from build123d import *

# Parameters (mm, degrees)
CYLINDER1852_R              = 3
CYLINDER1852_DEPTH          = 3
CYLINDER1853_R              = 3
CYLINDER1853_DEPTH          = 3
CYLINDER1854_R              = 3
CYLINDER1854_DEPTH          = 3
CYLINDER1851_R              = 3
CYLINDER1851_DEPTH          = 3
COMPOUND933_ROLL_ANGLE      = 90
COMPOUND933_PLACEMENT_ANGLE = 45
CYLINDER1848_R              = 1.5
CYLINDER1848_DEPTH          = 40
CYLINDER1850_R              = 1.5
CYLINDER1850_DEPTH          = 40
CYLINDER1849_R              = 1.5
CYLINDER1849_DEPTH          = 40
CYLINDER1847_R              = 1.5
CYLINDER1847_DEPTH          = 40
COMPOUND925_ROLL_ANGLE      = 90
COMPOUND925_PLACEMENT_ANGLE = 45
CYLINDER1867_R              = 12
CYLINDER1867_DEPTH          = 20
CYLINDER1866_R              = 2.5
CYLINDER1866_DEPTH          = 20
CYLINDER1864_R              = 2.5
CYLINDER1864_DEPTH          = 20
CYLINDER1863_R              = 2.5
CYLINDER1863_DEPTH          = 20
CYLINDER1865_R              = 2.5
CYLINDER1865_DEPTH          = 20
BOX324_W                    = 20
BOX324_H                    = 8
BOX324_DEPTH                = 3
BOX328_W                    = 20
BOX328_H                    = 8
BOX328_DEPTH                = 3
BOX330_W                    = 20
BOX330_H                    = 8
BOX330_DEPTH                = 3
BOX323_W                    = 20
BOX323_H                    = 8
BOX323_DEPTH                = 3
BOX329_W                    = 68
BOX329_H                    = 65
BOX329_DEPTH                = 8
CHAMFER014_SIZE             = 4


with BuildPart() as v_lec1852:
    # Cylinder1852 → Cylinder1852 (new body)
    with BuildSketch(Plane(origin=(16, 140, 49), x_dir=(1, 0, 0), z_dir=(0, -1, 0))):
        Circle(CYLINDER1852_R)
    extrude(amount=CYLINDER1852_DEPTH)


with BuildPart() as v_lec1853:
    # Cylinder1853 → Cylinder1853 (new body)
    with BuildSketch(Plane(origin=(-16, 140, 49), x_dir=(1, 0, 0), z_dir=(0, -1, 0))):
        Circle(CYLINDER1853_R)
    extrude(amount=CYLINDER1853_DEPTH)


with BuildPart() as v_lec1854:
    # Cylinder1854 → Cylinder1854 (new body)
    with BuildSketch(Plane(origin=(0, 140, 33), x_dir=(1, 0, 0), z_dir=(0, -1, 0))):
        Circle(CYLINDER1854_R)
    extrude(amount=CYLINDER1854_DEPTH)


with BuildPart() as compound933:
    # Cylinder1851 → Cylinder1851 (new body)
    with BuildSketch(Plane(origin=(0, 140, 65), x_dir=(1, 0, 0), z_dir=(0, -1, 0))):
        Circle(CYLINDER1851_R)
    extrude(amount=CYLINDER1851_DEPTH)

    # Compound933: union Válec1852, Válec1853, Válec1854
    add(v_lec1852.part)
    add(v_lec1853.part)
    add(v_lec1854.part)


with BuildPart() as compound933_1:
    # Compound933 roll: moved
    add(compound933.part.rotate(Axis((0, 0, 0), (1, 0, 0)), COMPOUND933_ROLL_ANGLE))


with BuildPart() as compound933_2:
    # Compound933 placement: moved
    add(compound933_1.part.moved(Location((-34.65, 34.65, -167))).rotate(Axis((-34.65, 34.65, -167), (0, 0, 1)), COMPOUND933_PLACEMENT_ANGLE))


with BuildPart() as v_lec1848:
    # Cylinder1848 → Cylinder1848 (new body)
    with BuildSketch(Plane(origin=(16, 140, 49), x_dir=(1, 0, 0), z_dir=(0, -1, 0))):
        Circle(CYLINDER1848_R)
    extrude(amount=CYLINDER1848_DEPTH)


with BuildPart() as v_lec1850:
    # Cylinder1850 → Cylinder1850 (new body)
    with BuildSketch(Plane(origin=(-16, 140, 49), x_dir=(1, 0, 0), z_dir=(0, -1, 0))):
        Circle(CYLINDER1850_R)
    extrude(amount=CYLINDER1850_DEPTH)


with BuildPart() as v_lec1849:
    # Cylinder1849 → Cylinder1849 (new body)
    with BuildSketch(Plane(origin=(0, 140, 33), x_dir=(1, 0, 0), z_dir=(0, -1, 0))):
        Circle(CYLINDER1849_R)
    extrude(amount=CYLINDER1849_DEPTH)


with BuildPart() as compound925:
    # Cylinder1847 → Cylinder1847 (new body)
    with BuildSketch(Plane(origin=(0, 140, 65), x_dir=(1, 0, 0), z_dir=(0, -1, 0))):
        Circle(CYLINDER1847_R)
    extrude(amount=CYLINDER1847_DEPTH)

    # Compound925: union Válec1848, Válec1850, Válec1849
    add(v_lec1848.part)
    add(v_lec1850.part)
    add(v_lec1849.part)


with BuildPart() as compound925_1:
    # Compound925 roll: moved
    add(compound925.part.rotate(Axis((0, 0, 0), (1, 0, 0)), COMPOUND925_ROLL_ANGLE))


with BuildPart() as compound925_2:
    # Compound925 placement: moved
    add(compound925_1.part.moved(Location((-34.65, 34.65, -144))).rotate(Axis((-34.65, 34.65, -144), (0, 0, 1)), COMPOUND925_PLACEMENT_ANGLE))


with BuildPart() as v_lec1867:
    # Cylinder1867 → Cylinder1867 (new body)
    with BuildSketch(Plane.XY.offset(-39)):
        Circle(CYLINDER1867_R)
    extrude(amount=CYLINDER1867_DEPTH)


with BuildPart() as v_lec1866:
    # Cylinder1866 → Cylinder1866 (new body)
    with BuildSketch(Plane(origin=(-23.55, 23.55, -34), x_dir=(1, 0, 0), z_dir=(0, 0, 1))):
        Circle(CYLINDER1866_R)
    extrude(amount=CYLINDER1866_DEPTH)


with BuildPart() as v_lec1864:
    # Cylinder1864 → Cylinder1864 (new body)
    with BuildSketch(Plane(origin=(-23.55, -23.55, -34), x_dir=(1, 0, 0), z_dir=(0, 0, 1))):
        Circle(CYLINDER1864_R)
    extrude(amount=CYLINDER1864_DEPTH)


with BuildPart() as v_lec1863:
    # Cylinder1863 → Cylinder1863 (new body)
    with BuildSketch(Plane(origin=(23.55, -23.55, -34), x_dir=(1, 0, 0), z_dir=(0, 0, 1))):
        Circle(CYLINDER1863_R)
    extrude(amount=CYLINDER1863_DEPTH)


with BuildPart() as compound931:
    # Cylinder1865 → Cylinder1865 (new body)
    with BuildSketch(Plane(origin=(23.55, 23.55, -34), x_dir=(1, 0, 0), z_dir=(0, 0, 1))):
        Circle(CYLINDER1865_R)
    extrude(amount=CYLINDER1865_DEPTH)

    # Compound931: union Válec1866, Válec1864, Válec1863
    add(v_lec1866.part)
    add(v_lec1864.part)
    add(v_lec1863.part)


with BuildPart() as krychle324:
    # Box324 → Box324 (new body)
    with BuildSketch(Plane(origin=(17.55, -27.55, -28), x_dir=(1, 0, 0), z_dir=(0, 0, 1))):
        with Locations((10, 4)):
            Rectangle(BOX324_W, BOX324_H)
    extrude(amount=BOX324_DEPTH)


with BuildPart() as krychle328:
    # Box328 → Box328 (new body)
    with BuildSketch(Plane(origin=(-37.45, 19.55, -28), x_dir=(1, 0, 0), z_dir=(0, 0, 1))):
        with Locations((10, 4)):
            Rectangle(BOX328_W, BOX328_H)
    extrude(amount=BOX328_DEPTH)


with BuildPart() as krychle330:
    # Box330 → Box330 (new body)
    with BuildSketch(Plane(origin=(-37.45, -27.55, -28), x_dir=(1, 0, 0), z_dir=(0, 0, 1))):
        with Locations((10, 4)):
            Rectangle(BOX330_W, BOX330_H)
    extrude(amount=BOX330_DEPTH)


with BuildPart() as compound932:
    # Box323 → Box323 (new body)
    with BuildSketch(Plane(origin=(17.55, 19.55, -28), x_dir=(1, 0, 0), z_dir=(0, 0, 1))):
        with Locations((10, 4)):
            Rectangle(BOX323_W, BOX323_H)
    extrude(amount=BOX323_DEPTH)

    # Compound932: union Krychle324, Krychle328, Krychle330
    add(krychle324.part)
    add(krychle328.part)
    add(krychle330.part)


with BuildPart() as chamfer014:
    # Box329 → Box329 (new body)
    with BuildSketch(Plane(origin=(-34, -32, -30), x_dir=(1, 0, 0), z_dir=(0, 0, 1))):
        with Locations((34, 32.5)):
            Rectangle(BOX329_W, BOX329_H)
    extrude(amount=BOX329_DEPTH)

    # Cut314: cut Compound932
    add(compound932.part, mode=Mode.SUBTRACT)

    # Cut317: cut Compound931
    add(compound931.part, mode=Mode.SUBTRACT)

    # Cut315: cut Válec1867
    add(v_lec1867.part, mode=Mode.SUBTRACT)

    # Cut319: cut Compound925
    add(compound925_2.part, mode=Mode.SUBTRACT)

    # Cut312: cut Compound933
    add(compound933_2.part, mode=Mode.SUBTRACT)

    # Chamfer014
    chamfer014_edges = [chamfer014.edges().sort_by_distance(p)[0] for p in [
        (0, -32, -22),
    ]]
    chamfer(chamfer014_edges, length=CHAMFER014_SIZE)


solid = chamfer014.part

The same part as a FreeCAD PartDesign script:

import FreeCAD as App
import Part
import Sketcher
from FreeCAD import Vector


def edges_at(feature, points):
    """Names of the edges that pass closest to the given points."""
    edges = feature.Shape.Edges
    near = lambda p: min(range(len(edges)), key=lambda i: edges[i].distToShape(Part.Vertex(*p))[0])
    return sorted({f"Edge{near(p) + 1}" for p in points})

doc = App.newDocument("Part")
body = doc.addObject("PartDesign::Body", "Body")

sketch1 = body.newObject("Sketcher::SketchObject", "Sketch")
sketch1.AttachmentSupport = (doc.getObject("XZ_Plane"), [""])
sketch1.MapMode = "FlatFace"
sketch1.AttachmentOffset = App.Placement(Vector(0, 0, -140), App.Rotation())
sketch1.addGeometry(Part.Circle(Vector(16, 49, 0), Vector(0, 0, 1), 3), False)
sketch1.addConstraint([
    Sketcher.Constraint("Diameter", 0, 6.0),
    Sketcher.Constraint("DistanceX", -1, 1, 0, 3, 16.0),
    Sketcher.Constraint("DistanceY", -1, 1, 0, 3, 49.0),
])
pad1 = body.newObject("PartDesign::Pad", "Pad")
pad1.Profile = sketch1
pad1.Length = 3
body2 = doc.addObject("PartDesign::Body", "Body001")

sketch2 = body2.newObject("Sketcher::SketchObject", "Sketch001")
sketch2.AttachmentSupport = (doc.getObject("XZ_Plane001"), [""])
sketch2.MapMode = "FlatFace"
sketch2.AttachmentOffset = App.Placement(Vector(0, 0, -140), App.Rotation())
sketch2.addGeometry(Part.Circle(Vector(-16, 49, 0), Vector(0, 0, 1), 3), False)
sketch2.addConstraint([
    Sketcher.Constraint("Diameter", 0, 6.0),
    Sketcher.Constraint("DistanceX", 0, 3, -1, 1, 16.0),
    Sketcher.Constraint("DistanceY", -1, 1, 0, 3, 49.0),
])
pad2 = body2.newObject("PartDesign::Pad", "Pad001")
pad2.Profile = sketch2
pad2.Length = 3
body3 = doc.addObject("PartDesign::Body", "Body002")

sketch3 = body3.newObject("Sketcher::SketchObject", "Sketch002")
sketch3.AttachmentSupport = (doc.getObject("XZ_Plane002"), [""])
sketch3.MapMode = "FlatFace"
sketch3.AttachmentOffset = App.Placement(Vector(0, 0, -140), App.Rotation())
sketch3.addGeometry(Part.Circle(Vector(0, 33, 0), Vector(0, 0, 1), 3), False)
sketch3.addConstraint([
    Sketcher.Constraint("PointOnObject", 0, 3, -2),
    Sketcher.Constraint("Diameter", 0, 6.0),
    Sketcher.Constraint("DistanceY", -1, 1, 0, 3, 33.0),
])
pad3 = body3.newObject("PartDesign::Pad", "Pad002")
pad3.Profile = sketch3
pad3.Length = 3
body4 = doc.addObject("PartDesign::Body", "Body003")
body4.AllowCompound = True

sketch4 = body4.newObject("Sketcher::SketchObject", "Sketch003")
sketch4.AttachmentSupport = (doc.getObject("XZ_Plane003"), [""])
sketch4.MapMode = "FlatFace"
sketch4.AttachmentOffset = App.Placement(Vector(0, 0, -140), App.Rotation())
sketch4.addGeometry(Part.Circle(Vector(0, 65, 0), Vector(0, 0, 1), 3), False)
sketch4.addConstraint([
    Sketcher.Constraint("PointOnObject", 0, 3, -2),
    Sketcher.Constraint("Diameter", 0, 6.0),
    Sketcher.Constraint("DistanceY", -1, 1, 0, 3, 65.0),
])
pad4 = body4.newObject("PartDesign::Pad", "Pad003")
pad4.Profile = sketch4
pad4.Length = 3
doc.recompute()

boolean = body4.newObject("PartDesign::Boolean", "Boolean")
boolean.Type = "Fuse"
boolean.addObjects([body])
doc.recompute()

boolean2 = body4.newObject("PartDesign::Boolean", "Boolean001")
boolean2.Type = "Fuse"
boolean2.addObjects([body2])
doc.recompute()

boolean3 = body4.newObject("PartDesign::Boolean", "Boolean002")
boolean3.Type = "Fuse"
boolean3.addObjects([body3])
body5 = doc.addObject("PartDesign::Body", "Body004")
body5.AllowCompound = True
doc.recompute()

body4.Placement = App.Placement(Vector(0, 0, 0), App.Rotation(Vector(1, 0, 0), 90))
boolean4 = body5.newObject("PartDesign::Boolean", "Boolean003")
boolean4.Type = "Fuse"
boolean4.addObjects([body4])
body6 = doc.addObject("PartDesign::Body", "Body005")
body6.AllowCompound = True
doc.recompute()

body5.Placement = App.Placement(Vector(-34.65, 34.65, -167), App.Rotation(Vector(0, 0, 1), 45))
boolean5 = body6.newObject("PartDesign::Boolean", "Boolean004")
boolean5.Type = "Fuse"
boolean5.addObjects([body5])
body7 = doc.addObject("PartDesign::Body", "Body006")

sketch5 = body7.newObject("Sketcher::SketchObject", "Sketch004")
sketch5.AttachmentSupport = (doc.getObject("XZ_Plane006"), [""])
sketch5.MapMode = "FlatFace"
sketch5.AttachmentOffset = App.Placement(Vector(0, 0, -140), App.Rotation())
sketch5.addGeometry(Part.Circle(Vector(16, 49, 0), Vector(0, 0, 1), 1.5), False)
sketch5.addConstraint([
    Sketcher.Constraint("Diameter", 0, 3.0),
    Sketcher.Constraint("DistanceX", -1, 1, 0, 3, 16.0),
    Sketcher.Constraint("DistanceY", -1, 1, 0, 3, 49.0),
])
pad5 = body7.newObject("PartDesign::Pad", "Pad004")
pad5.Profile = sketch5
pad5.Length = 40
body8 = doc.addObject("PartDesign::Body", "Body007")

sketch6 = body8.newObject("Sketcher::SketchObject", "Sketch005")
sketch6.AttachmentSupport = (doc.getObject("XZ_Plane007"), [""])
sketch6.MapMode = "FlatFace"
sketch6.AttachmentOffset = App.Placement(Vector(0, 0, -140), App.Rotation())
sketch6.addGeometry(Part.Circle(Vector(-16, 49, 0), Vector(0, 0, 1), 1.5), False)
sketch6.addConstraint([
    Sketcher.Constraint("Diameter", 0, 3.0),
    Sketcher.Constraint("DistanceX", 0, 3, -1, 1, 16.0),
    Sketcher.Constraint("DistanceY", -1, 1, 0, 3, 49.0),
])
pad6 = body8.newObject("PartDesign::Pad", "Pad005")
pad6.Profile = sketch6
pad6.Length = 40
body9 = doc.addObject("PartDesign::Body", "Body008")

sketch7 = body9.newObject("Sketcher::SketchObject", "Sketch006")
sketch7.AttachmentSupport = (doc.getObject("XZ_Plane008"), [""])
sketch7.MapMode = "FlatFace"
sketch7.AttachmentOffset = App.Placement(Vector(0, 0, -140), App.Rotation())
sketch7.addGeometry(Part.Circle(Vector(0, 33, 0), Vector(0, 0, 1), 1.5), False)
sketch7.addConstraint([
    Sketcher.Constraint("PointOnObject", 0, 3, -2),
    Sketcher.Constraint("Diameter", 0, 3.0),
    Sketcher.Constraint("DistanceY", -1, 1, 0, 3, 33.0),
])
pad7 = body9.newObject("PartDesign::Pad", "Pad006")
pad7.Profile = sketch7
pad7.Length = 40
body10 = doc.addObject("PartDesign::Body", "Body009")
body10.AllowCompound = True

sketch8 = body10.newObject("Sketcher::SketchObject", "Sketch007")
sketch8.AttachmentSupport = (doc.getObject("XZ_Plane009"), [""])
sketch8.MapMode = "FlatFace"
sketch8.AttachmentOffset = App.Placement(Vector(0, 0, -140), App.Rotation())
sketch8.addGeometry(Part.Circle(Vector(0, 65, 0), Vector(0, 0, 1), 1.5), False)
sketch8.addConstraint([
    Sketcher.Constraint("PointOnObject", 0, 3, -2),
    Sketcher.Constraint("Diameter", 0, 3.0),
    Sketcher.Constraint("DistanceY", -1, 1, 0, 3, 65.0),
])
pad8 = body10.newObject("PartDesign::Pad", "Pad007")
pad8.Profile = sketch8
pad8.Length = 40
doc.recompute()

boolean6 = body10.newObject("PartDesign::Boolean", "Boolean005")
boolean6.Type = "Fuse"
boolean6.addObjects([body7])
doc.recompute()

boolean7 = body10.newObject("PartDesign::Boolean", "Boolean006")
boolean7.Type = "Fuse"
boolean7.addObjects([body8])
doc.recompute()

boolean8 = body10.newObject("PartDesign::Boolean", "Boolean007")
boolean8.Type = "Fuse"
boolean8.addObjects([body9])
body11 = doc.addObject("PartDesign::Body", "Body010")
body11.AllowCompound = True
doc.recompute()

body10.Placement = App.Placement(Vector(0, 0, 0), App.Rotation(Vector(1, 0, 0), 90))
boolean9 = body11.newObject("PartDesign::Boolean", "Boolean008")
boolean9.Type = "Fuse"
boolean9.addObjects([body10])
body12 = doc.addObject("PartDesign::Body", "Body011")
body12.AllowCompound = True
doc.recompute()

body11.Placement = App.Placement(Vector(-34.65, 34.65, -144), App.Rotation(Vector(0, 0, 1), 45))
boolean10 = body12.newObject("PartDesign::Boolean", "Boolean009")
boolean10.Type = "Fuse"
boolean10.addObjects([body11])
body13 = doc.addObject("PartDesign::Body", "Body012")

sketch9 = body13.newObject("Sketcher::SketchObject", "Sketch008")
sketch9.AttachmentSupport = (doc.getObject("XY_Plane012"), [""])
sketch9.MapMode = "FlatFace"
sketch9.AttachmentOffset = App.Placement(Vector(0, 0, -39), App.Rotation())
sketch9.addGeometry(Part.Circle(Vector(0, 0, 0), Vector(0, 0, 1), 12), False)
sketch9.addConstraint([
    Sketcher.Constraint("Coincident", 0, 3, -1, 1),
    Sketcher.Constraint("Diameter", 0, 24.0),
])
pad9 = body13.newObject("PartDesign::Pad", "Pad008")
pad9.Profile = sketch9
pad9.Length = 20
body14 = doc.addObject("PartDesign::Body", "Body013")

sketch10 = body14.newObject("Sketcher::SketchObject", "Sketch009")
sketch10.AttachmentSupport = (doc.getObject("XY_Plane013"), [""])
sketch10.MapMode = "FlatFace"
sketch10.AttachmentOffset = App.Placement(Vector(0, 0, -34), App.Rotation())
sketch10.addGeometry(Part.Circle(Vector(-23.55, 23.55, 0), Vector(0, 0, 1), 2.5), False)
sketch10.addConstraint([
    Sketcher.Constraint("Diameter", 0, 5.0),
    Sketcher.Constraint("DistanceX", 0, 3, -1, 1, 23.55),
    Sketcher.Constraint("DistanceY", -1, 1, 0, 3, 23.55),
])
pad10 = body14.newObject("PartDesign::Pad", "Pad009")
pad10.Profile = sketch10
pad10.Length = 20
body15 = doc.addObject("PartDesign::Body", "Body014")

sketch11 = body15.newObject("Sketcher::SketchObject", "Sketch010")
sketch11.AttachmentSupport = (doc.getObject("XY_Plane014"), [""])
sketch11.MapMode = "FlatFace"
sketch11.AttachmentOffset = App.Placement(Vector(0, 0, -34), App.Rotation())
sketch11.addGeometry(Part.Circle(Vector(-23.55, -23.55, 0), Vector(0, 0, 1), 2.5), False)
sketch11.addConstraint([
    Sketcher.Constraint("Diameter", 0, 5.0),
    Sketcher.Constraint("DistanceX", 0, 3, -1, 1, 23.55),
    Sketcher.Constraint("DistanceY", 0, 3, -1, 1, 23.55),
])
pad11 = body15.newObject("PartDesign::Pad", "Pad010")
pad11.Profile = sketch11
pad11.Length = 20
body16 = doc.addObject("PartDesign::Body", "Body015")

sketch12 = body16.newObject("Sketcher::SketchObject", "Sketch011")
sketch12.AttachmentSupport = (doc.getObject("XY_Plane015"), [""])
sketch12.MapMode = "FlatFace"
sketch12.AttachmentOffset = App.Placement(Vector(0, 0, -34), App.Rotation())
sketch12.addGeometry(Part.Circle(Vector(23.55, -23.55, 0), Vector(0, 0, 1), 2.5), False)
sketch12.addConstraint([
    Sketcher.Constraint("Diameter", 0, 5.0),
    Sketcher.Constraint("DistanceX", -1, 1, 0, 3, 23.55),
    Sketcher.Constraint("DistanceY", 0, 3, -1, 1, 23.55),
])
pad12 = body16.newObject("PartDesign::Pad", "Pad011")
pad12.Profile = sketch12
pad12.Length = 20
body17 = doc.addObject("PartDesign::Body", "Body016")
body17.AllowCompound = True

sketch13 = body17.newObject("Sketcher::SketchObject", "Sketch012")
sketch13.AttachmentSupport = (doc.getObject("XY_Plane016"), [""])
sketch13.MapMode = "FlatFace"
sketch13.AttachmentOffset = App.Placement(Vector(0, 0, -34), App.Rotation())
sketch13.addGeometry(Part.Circle(Vector(23.55, 23.55, 0), Vector(0, 0, 1), 2.5), False)
sketch13.addConstraint([
    Sketcher.Constraint("Diameter", 0, 5.0),
    Sketcher.Constraint("DistanceX", -1, 1, 0, 3, 23.55),
    Sketcher.Constraint("DistanceY", -1, 1, 0, 3, 23.55),
])
pad13 = body17.newObject("PartDesign::Pad", "Pad012")
pad13.Profile = sketch13
pad13.Length = 20
doc.recompute()

boolean11 = body17.newObject("PartDesign::Boolean", "Boolean010")
boolean11.Type = "Fuse"
boolean11.addObjects([body14])
doc.recompute()

boolean12 = body17.newObject("PartDesign::Boolean", "Boolean011")
boolean12.Type = "Fuse"
boolean12.addObjects([body15])
doc.recompute()

boolean13 = body17.newObject("PartDesign::Boolean", "Boolean012")
boolean13.Type = "Fuse"
boolean13.addObjects([body16])
body18 = doc.addObject("PartDesign::Body", "Body017")

sketch14 = body18.newObject("Sketcher::SketchObject", "Sketch013")
sketch14.AttachmentSupport = (doc.getObject("XY_Plane017"), [""])
sketch14.MapMode = "FlatFace"
sketch14.AttachmentOffset = App.Placement(Vector(0, 0, -28), App.Rotation())
sketch14.addGeometry([
    Part.LineSegment(Vector(17.55, -19.55, 0), Vector(17.55, -27.55, 0)),
    Part.LineSegment(Vector(17.55, -27.55, 0), Vector(37.55, -27.55, 0)),
    Part.LineSegment(Vector(37.55, -27.55, 0), Vector(37.55, -19.55, 0)),
    Part.LineSegment(Vector(37.55, -19.55, 0), Vector(17.55, -19.55, 0)),
], False)
sketch14.addConstraint([
    Sketcher.Constraint("Coincident", 0, 2, 1, 1),
    Sketcher.Constraint("Coincident", 1, 2, 2, 1),
    Sketcher.Constraint("Coincident", 2, 2, 3, 1),
    Sketcher.Constraint("Coincident", 3, 2, 0, 1),
    Sketcher.Constraint("Vertical", 0),
    Sketcher.Constraint("Horizontal", 1),
    Sketcher.Constraint("Vertical", 2),
    Sketcher.Constraint("Horizontal", 3),
    Sketcher.Constraint("DistanceX", 1, 1, 1, 2, 20.0),
    Sketcher.Constraint("DistanceY", 0, 2, 0, 1, 8.0),
    Sketcher.Constraint("DistanceX", -1, 1, 0, 2, 17.55),
    Sketcher.Constraint("DistanceY", 0, 2, -1, 1, 27.55),
])
pad14 = body18.newObject("PartDesign::Pad", "Pad013")
pad14.Profile = sketch14
pad14.Length = 3
body19 = doc.addObject("PartDesign::Body", "Body018")

sketch15 = body19.newObject("Sketcher::SketchObject", "Sketch014")
sketch15.AttachmentSupport = (doc.getObject("XY_Plane018"), [""])
sketch15.MapMode = "FlatFace"
sketch15.AttachmentOffset = App.Placement(Vector(0, 0, -28), App.Rotation())
sketch15.addGeometry([
    Part.LineSegment(Vector(-37.45, 27.55, 0), Vector(-37.45, 19.55, 0)),
    Part.LineSegment(Vector(-37.45, 19.55, 0), Vector(-17.45, 19.55, 0)),
    Part.LineSegment(Vector(-17.45, 19.55, 0), Vector(-17.45, 27.55, 0)),
    Part.LineSegment(Vector(-17.45, 27.55, 0), Vector(-37.45, 27.55, 0)),
], False)
sketch15.addConstraint([
    Sketcher.Constraint("Coincident", 0, 2, 1, 1),
    Sketcher.Constraint("Coincident", 1, 2, 2, 1),
    Sketcher.Constraint("Coincident", 2, 2, 3, 1),
    Sketcher.Constraint("Coincident", 3, 2, 0, 1),
    Sketcher.Constraint("Vertical", 0),
    Sketcher.Constraint("Horizontal", 1),
    Sketcher.Constraint("Vertical", 2),
    Sketcher.Constraint("Horizontal", 3),
    Sketcher.Constraint("DistanceX", 1, 1, 1, 2, 20.0),
    Sketcher.Constraint("DistanceY", 0, 2, 0, 1, 8.0),
    Sketcher.Constraint("DistanceX", 0, 2, -1, 1, 37.45),
    Sketcher.Constraint("DistanceY", -1, 1, 0, 2, 19.55),
])
pad15 = body19.newObject("PartDesign::Pad", "Pad014")
pad15.Profile = sketch15
pad15.Length = 3
body20 = doc.addObject("PartDesign::Body", "Body019")

sketch16 = body20.newObject("Sketcher::SketchObject", "Sketch015")
sketch16.AttachmentSupport = (doc.getObject("XY_Plane019"), [""])
sketch16.MapMode = "FlatFace"
sketch16.AttachmentOffset = App.Placement(Vector(0, 0, -28), App.Rotation())
sketch16.addGeometry([
    Part.LineSegment(Vector(-37.45, -19.55, 0), Vector(-37.45, -27.55, 0)),
    Part.LineSegment(Vector(-37.45, -27.55, 0), Vector(-17.45, -27.55, 0)),
    Part.LineSegment(Vector(-17.45, -27.55, 0), Vector(-17.45, -19.55, 0)),
    Part.LineSegment(Vector(-17.45, -19.55, 0), Vector(-37.45, -19.55, 0)),
], False)
sketch16.addConstraint([
    Sketcher.Constraint("Coincident", 0, 2, 1, 1),
    Sketcher.Constraint("Coincident", 1, 2, 2, 1),
    Sketcher.Constraint("Coincident", 2, 2, 3, 1),
    Sketcher.Constraint("Coincident", 3, 2, 0, 1),
    Sketcher.Constraint("Vertical", 0),
    Sketcher.Constraint("Horizontal", 1),
    Sketcher.Constraint("Vertical", 2),
    Sketcher.Constraint("Horizontal", 3),
    Sketcher.Constraint("DistanceX", 1, 1, 1, 2, 20.0),
    Sketcher.Constraint("DistanceY", 0, 2, 0, 1, 8.0),
    Sketcher.Constraint("DistanceX", 0, 2, -1, 1, 37.45),
    Sketcher.Constraint("DistanceY", 0, 2, -1, 1, 27.55),
])
pad16 = body20.newObject("PartDesign::Pad", "Pad015")
pad16.Profile = sketch16
pad16.Length = 3
body21 = doc.addObject("PartDesign::Body", "Body020")
body21.AllowCompound = True

sketch17 = body21.newObject("Sketcher::SketchObject", "Sketch016")
sketch17.AttachmentSupport = (doc.getObject("XY_Plane020"), [""])
sketch17.MapMode = "FlatFace"
sketch17.AttachmentOffset = App.Placement(Vector(0, 0, -28), App.Rotation())
sketch17.addGeometry([
    Part.LineSegment(Vector(17.55, 27.55, 0), Vector(17.55, 19.55, 0)),
    Part.LineSegment(Vector(17.55, 19.55, 0), Vector(37.55, 19.55, 0)),
    Part.LineSegment(Vector(37.55, 19.55, 0), Vector(37.55, 27.55, 0)),
    Part.LineSegment(Vector(37.55, 27.55, 0), Vector(17.55, 27.55, 0)),
], False)
sketch17.addConstraint([
    Sketcher.Constraint("Coincident", 0, 2, 1, 1),
    Sketcher.Constraint("Coincident", 1, 2, 2, 1),
    Sketcher.Constraint("Coincident", 2, 2, 3, 1),
    Sketcher.Constraint("Coincident", 3, 2, 0, 1),
    Sketcher.Constraint("Vertical", 0),
    Sketcher.Constraint("Horizontal", 1),
    Sketcher.Constraint("Vertical", 2),
    Sketcher.Constraint("Horizontal", 3),
    Sketcher.Constraint("DistanceX", 1, 1, 1, 2, 20.0),
    Sketcher.Constraint("DistanceY", 0, 2, 0, 1, 8.0),
    Sketcher.Constraint("DistanceX", -1, 1, 0, 2, 17.55),
    Sketcher.Constraint("DistanceY", -1, 1, 0, 2, 19.55),
])
pad17 = body21.newObject("PartDesign::Pad", "Pad016")
pad17.Profile = sketch17
pad17.Length = 3
doc.recompute()

boolean14 = body21.newObject("PartDesign::Boolean", "Boolean013")
boolean14.Type = "Fuse"
boolean14.addObjects([body18])
doc.recompute()

boolean15 = body21.newObject("PartDesign::Boolean", "Boolean014")
boolean15.Type = "Fuse"
boolean15.addObjects([body19])
doc.recompute()

boolean16 = body21.newObject("PartDesign::Boolean", "Boolean015")
boolean16.Type = "Fuse"
boolean16.addObjects([body20])
body22 = doc.addObject("PartDesign::Body", "Body021")

sketch18 = body22.newObject("Sketcher::SketchObject", "Sketch017")
sketch18.AttachmentSupport = (doc.getObject("XY_Plane021"), [""])
sketch18.MapMode = "FlatFace"
sketch18.AttachmentOffset = App.Placement(Vector(0, 0, -30), App.Rotation())
sketch18.addGeometry([
    Part.LineSegment(Vector(-34, 33, 0), Vector(-34, -32, 0)),
    Part.LineSegment(Vector(-34, -32, 0), Vector(34, -32, 0)),
    Part.LineSegment(Vector(34, -32, 0), Vector(34, 33, 0)),
    Part.LineSegment(Vector(34, 33, 0), Vector(-34, 33, 0)),
], False)
sketch18.addConstraint([
    Sketcher.Constraint("Coincident", 0, 2, 1, 1),
    Sketcher.Constraint("Coincident", 1, 2, 2, 1),
    Sketcher.Constraint("Coincident", 2, 2, 3, 1),
    Sketcher.Constraint("Coincident", 3, 2, 0, 1),
    Sketcher.Constraint("Vertical", 0),
    Sketcher.Constraint("Horizontal", 1),
    Sketcher.Constraint("Vertical", 2),
    Sketcher.Constraint("Horizontal", 3),
    Sketcher.Constraint("DistanceX", 1, 1, 1, 2, 68.0),
    Sketcher.Constraint("DistanceY", 0, 2, 0, 1, 65.0),
    Sketcher.Constraint("DistanceX", 0, 2, -1, 1, 34.0),
    Sketcher.Constraint("DistanceY", 0, 2, -1, 1, 32.0),
])
pad18 = body22.newObject("PartDesign::Pad", "Pad017")
pad18.Profile = sketch18
pad18.Length = 8
doc.recompute()

boolean17 = body22.newObject("PartDesign::Boolean", "Boolean016")
boolean17.Type = "Cut"
boolean17.addObjects([body21])
doc.recompute()

boolean18 = body22.newObject("PartDesign::Boolean", "Boolean017")
boolean18.Type = "Cut"
boolean18.addObjects([body17])
doc.recompute()

boolean19 = body22.newObject("PartDesign::Boolean", "Boolean018")
boolean19.Type = "Cut"
boolean19.addObjects([body13])
doc.recompute()

boolean20 = body22.newObject("PartDesign::Boolean", "Boolean019")
boolean20.Type = "Cut"
boolean20.addObjects([body12])
doc.recompute()

boolean21 = body22.newObject("PartDesign::Boolean", "Boolean020")
boolean21.Type = "Cut"
boolean21.addObjects([body6])
doc.recompute()

chamfer = body22.newObject("PartDesign::Chamfer", "Chamfer")
chamfer.Base = (boolean21, edges_at(boolean21, [(0, -32, -22)]))
chamfer.Size = 4

doc.recompute()
